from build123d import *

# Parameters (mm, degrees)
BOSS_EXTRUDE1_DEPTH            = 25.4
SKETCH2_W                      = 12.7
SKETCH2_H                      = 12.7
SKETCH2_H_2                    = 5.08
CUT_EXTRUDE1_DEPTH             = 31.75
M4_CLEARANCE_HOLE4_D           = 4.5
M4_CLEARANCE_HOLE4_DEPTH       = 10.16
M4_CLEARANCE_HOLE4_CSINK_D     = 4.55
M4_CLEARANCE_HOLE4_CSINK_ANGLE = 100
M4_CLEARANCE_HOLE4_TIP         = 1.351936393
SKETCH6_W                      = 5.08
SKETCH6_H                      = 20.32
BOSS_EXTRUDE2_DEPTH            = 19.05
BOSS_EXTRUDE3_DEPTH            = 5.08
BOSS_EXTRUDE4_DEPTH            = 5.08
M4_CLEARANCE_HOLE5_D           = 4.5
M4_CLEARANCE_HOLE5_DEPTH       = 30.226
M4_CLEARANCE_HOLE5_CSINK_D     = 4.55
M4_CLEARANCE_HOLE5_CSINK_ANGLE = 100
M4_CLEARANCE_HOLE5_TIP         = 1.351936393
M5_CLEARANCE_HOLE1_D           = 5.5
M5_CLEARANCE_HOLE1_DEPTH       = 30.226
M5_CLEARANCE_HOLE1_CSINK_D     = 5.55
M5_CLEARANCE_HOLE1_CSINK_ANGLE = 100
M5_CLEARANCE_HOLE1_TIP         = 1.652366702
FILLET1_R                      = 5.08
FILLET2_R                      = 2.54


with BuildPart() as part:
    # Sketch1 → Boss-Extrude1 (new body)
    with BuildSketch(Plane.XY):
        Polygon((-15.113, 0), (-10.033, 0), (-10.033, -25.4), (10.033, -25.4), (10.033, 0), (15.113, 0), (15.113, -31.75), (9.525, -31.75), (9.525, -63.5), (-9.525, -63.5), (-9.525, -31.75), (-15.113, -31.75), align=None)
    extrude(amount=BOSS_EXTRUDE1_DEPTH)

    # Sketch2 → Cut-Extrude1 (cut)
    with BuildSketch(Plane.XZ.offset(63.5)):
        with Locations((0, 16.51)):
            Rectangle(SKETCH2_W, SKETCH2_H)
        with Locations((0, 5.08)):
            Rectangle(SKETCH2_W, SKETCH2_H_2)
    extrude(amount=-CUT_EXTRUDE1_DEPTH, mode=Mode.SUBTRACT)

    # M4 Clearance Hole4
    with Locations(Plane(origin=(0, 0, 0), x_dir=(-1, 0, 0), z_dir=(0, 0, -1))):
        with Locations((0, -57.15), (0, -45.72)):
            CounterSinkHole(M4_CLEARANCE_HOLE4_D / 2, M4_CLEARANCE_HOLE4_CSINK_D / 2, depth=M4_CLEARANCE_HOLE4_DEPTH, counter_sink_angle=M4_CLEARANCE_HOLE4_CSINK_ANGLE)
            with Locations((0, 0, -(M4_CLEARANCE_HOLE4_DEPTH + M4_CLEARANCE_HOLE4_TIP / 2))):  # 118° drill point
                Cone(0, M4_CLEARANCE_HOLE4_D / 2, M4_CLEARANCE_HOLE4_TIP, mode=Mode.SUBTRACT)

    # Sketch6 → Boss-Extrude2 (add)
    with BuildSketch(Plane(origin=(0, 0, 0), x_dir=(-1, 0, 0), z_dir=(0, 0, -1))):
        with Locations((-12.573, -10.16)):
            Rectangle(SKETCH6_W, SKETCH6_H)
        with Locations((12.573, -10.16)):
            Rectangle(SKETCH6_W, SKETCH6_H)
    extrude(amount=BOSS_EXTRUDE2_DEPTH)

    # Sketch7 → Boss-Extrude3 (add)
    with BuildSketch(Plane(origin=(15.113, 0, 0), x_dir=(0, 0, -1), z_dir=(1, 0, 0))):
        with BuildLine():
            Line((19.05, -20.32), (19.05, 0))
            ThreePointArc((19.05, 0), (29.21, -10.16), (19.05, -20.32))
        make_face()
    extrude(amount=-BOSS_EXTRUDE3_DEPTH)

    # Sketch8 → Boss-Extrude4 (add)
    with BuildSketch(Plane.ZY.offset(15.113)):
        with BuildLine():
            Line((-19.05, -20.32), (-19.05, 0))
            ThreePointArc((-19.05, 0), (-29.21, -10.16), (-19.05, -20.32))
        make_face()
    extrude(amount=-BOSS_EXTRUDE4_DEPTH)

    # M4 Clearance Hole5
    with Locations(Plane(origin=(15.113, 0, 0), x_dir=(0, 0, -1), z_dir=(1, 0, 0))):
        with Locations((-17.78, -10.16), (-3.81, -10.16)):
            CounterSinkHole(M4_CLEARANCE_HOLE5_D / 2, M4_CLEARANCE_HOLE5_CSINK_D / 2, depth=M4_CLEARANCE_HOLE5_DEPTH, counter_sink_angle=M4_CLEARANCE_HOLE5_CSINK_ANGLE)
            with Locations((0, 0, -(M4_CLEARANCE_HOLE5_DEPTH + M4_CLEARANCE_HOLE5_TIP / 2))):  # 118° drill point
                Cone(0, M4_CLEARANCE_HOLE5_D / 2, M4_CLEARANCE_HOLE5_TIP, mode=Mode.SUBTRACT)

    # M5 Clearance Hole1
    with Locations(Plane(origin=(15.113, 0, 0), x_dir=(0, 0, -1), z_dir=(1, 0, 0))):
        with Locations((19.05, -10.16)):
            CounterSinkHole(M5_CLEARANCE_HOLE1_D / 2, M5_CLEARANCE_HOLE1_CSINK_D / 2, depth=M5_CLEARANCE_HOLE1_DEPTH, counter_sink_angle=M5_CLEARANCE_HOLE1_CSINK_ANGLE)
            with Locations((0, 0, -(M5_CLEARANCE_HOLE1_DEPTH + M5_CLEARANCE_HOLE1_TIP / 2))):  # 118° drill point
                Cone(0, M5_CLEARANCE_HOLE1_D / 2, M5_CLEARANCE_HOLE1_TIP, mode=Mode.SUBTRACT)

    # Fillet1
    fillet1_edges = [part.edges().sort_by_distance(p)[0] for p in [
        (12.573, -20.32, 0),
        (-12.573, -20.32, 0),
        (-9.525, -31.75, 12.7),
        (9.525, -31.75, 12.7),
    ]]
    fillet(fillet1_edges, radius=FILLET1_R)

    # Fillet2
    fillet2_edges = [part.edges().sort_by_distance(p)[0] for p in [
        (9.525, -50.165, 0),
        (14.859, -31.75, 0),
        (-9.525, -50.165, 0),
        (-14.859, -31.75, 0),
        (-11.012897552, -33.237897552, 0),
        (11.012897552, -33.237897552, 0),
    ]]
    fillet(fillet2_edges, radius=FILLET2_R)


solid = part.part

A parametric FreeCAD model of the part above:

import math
import FreeCAD as App
import Part
import Sketcher
from FreeCAD import Vector
Q = App.Units.Quantity


def edges_at(feature, points):
    """Names of the edges that pass closest to the given points."""
    edges = feature.Shape.Edges
    near = lambda p: min(range(len(edges)), key=lambda i: edges[i].distToShape(Part.Vertex(*p))[0])
    return sorted({f"Edge{near(p) + 1}" for p in points})


def add_polygon(sketch, points):
    """Adds a closed chain of lines whose ends are joined by coincident constraints."""
    first, n = sketch.GeometryCount, len(points)
    for a, b in zip(points, points[1:] + points[:1]):
        sketch.addGeometry(Part.LineSegment(App.Vector(*a, 0), App.Vector(*b, 0)), False)
    for i in range(n):
        sketch.addConstraint(Sketcher.Constraint("Coincident", first + i, 2, first + (i + 1) % n, 1))

doc = App.newDocument("Part")
body = doc.addObject("PartDesign::Body", "Body")

# Sketch on XY plane
sketch1 = doc.addObject("Sketcher::SketchObject", "Sketch")
body.addObject(sketch1)
sketch1.AttachmentSupport = (doc.XY_Plane, [""])
sketch1.MapMode = "FlatFace"
add_polygon(sketch1, [(-10, 0), (-15, 0), (-15, -32), (-10, -32), (-10, -64), (10, -64), (10, -32), (15, -32), (15, 0), (10, 0), (10, -25), (-10, -25)])  # lines 0-11
sketch1.addConstraint(Sketcher.Constraint("Horizontal", 0))
sketch1.addConstraint(Sketcher.Constraint("Vertical", 1))
sketch1.addConstraint(Sketcher.Constraint("Horizontal", 2))
sketch1.addConstraint(Sketcher.Constraint("Vertical", 3))
sketch1.addConstraint(Sketcher.Constraint("Horizontal", 4))
sketch1.addConstraint(Sketcher.Constraint("Vertical", 5))
sketch1.addConstraint(Sketcher.Constraint("Horizontal", 6))
sketch1.addConstraint(Sketcher.Constraint("Vertical", 7))
sketch1.addConstraint(Sketcher.Constraint("Horizontal", 8))
sketch1.addConstraint(Sketcher.Constraint("Vertical", 9))
sketch1.addConstraint(Sketcher.Constraint("Horizontal", 10))
sketch1.addConstraint(Sketcher.Constraint("Vertical", 11))
sketch1.addConstraint(Sketcher.Constraint("Symmetric", 0, 2, 7, 2, -1, 1))
sketch1.addConstraint(Sketcher.Constraint("Symmetric", 2, 2, 5, 2, -2))
sketch1.addConstraint(Sketcher.Constraint("Symmetric", 8, 2, 11, 2, -2))
sketch1.addConstraint(Sketcher.Constraint("Equal", 1, 3))
sketch1.addConstraint(Sketcher.Constraint("DistanceY", 9, 2, 9, 1, Q("1 in")))
sketch1.addConstraint(Sketcher.Constraint("DistanceX", 0, 2, 0, 1, Q("0.2 in")))
sketch1.addConstraint(Sketcher.Constraint("DistanceX", 2, 1, 2, 2, Q("0.22 in")))
sketch1.addConstraint(Sketcher.Constraint("DistanceX", 4, 1, 4, 2, Q("0.75 in")))
sketch1.addConstraint(Sketcher.Constraint("DistanceY", 1, 2, 1, 1, Q("1.25 in")))
pad1 = doc.addObject("PartDesign::Pad", "Pad")
body.addObject(pad1)
pad1.Profile = sketch1
pad1.Length = Q("1 in")

# Sketch on XZ plane
sketch2 = doc.addObject("Sketcher::SketchObject", "Sketch001")
body.addObject(sketch2)
sketch2.AttachmentSupport = (doc.XZ_Plane, [""])
sketch2.MapMode = "FlatFace"
sketch2.AttachmentOffset = App.Placement(Vector(0, 0, 2.5 * 25.4), App.Rotation())
add_polygon(sketch2, [(-6, 23), (-6, 10), (6, 10), (6, 23)])  # lines 0-3
add_polygon(sketch2, [(-6, 8), (-6, 3), (6, 3), (6, 8)])  # lines 4-7
sketch2.addConstraint(Sketcher.Constraint("Vertical", 0))
sketch2.addConstraint(Sketcher.Constraint("Horizontal", 1))
sketch2.addConstraint(Sketcher.Constraint("Vertical", 2))
sketch2.addConstraint(Sketcher.Constraint("Horizontal", 3))
sketch2.addConstraint(Sketcher.Constraint("Vertical", 4))
sketch2.addConstraint(Sketcher.Constraint("Horizontal", 5))
sketch2.addConstraint(Sketcher.Constraint("Vertical", 6))
sketch2.addConstraint(Sketcher.Constraint("Horizontal", 7))
sketch2.addConstraint(Sketcher.Constraint("Vertical", 3, 2, 4, 2))
sketch2.addConstraint(Sketcher.Constraint("Vertical", 2, 2, 5, 2))
sketch2.addConstraint(Sketcher.Constraint("Equal", 7, 0))
sketch2.addConstraint(Sketcher.Constraint("DistanceX", 1, 1, 1, 2, Q("0.5 in")))
sketch2.addConstraint(Sketcher.Constraint("DistanceY", 4, 2, 4, 1, Q("0.2 in")))
sketch2.addConstraint(Sketcher.Constraint("DistanceY", -1, 1, 0, 2, Q("0.4 in")))
sketch2.addConstraint(Sketcher.Constraint("DistanceY", -1, 1, 4, 2, Q("0.1 in")))
sketch2.addConstraint(Sketcher.Constraint("DistanceX", 0, 2, -1, 1, Q("0.25 in")))
pocket1 = doc.addObject("PartDesign::Pocket", "Pocket")
body.addObject(pocket1)
pocket1.Profile = sketch2
pocket1.Length = Q("1.25 in")

# Sketch on XY plane
sketch3 = doc.addObject("Sketcher::SketchObject", "Sketch002")
body.addObject(sketch3)
sketch3.AttachmentSupport = (doc.XY_Plane, [""])
sketch3.MapMode = "FlatFace"
sketch3.addGeometry(Part.Circle(Vector(0, -57.1, 0), Vector(0, 0, 1), 2.2), False)
sketch3.addGeometry(Part.Circle(Vector(0, -45.7, 0), Vector(0, 0, 1), 2.2), False)
sketch3.addConstraint(Sketcher.Constraint("Equal", 0, 1))
sketch3.addConstraint(Sketcher.Constraint("PointOnObject", 0, 3, -2))
sketch3.addConstraint(Sketcher.Constraint("PointOnObject", 1, 3, -2))
sketch3.addConstraint(Sketcher.Constraint("DistanceY", 1, 3, -1, 1, Q("1.8 in")))
sketch3.addConstraint(Sketcher.Constraint("Diameter", 0, 4.5))
sketch3.addConstraint(Sketcher.Constraint("DistanceY", 0, 3, -1, 1, Q("2.25 in")))
doc.recompute()
hole = doc.addObject("PartDesign::Hole", "Hole")
body.addObject(hole)
hole.Profile = sketch3
hole.ThreadType = "None"
hole.Diameter = 4.5
hole.DepthType = "Dimension"
hole.Depth = Q("0.4 in")
hole.DrillPoint = "Angled"
hole.DrillPointAngle = 118
hole.HoleCutType = "Countersink"
hole.HoleCutDiameter = 4.55
hole.HoleCutCountersinkAngle = 100
hole.Reversed = True

# Sketch on XY plane
sketch4 = doc.addObject("Sketcher::SketchObject", "Sketch003")
body.addObject(sketch4)
sketch4.AttachmentSupport = (doc.XY_Plane, [""])
sketch4.MapMode = "FlatFace"
add_polygon(sketch4, [(15, 0), (15, -20), (10, -20), (10, 0)])  # lines 0-3
add_polygon(sketch4, [(-10, 0), (-10, -20), (-15, -20), (-15, 0)])  # lines 4-7
sketch4.addConstraint(Sketcher.Constraint("Vertical", 0))
sketch4.addConstraint(Sketcher.Constraint("Horizontal", 1))
sketch4.addConstraint(Sketcher.Constraint("Vertical", 2))
sketch4.addConstraint(Sketcher.Constraint("Horizontal", 3))
sketch4.addConstraint(Sketcher.Constraint("Vertical", 4))
sketch4.addConstraint(Sketcher.Constraint("Horizontal", 5))
sketch4.addConstraint(Sketcher.Constraint("Vertical", 6))
sketch4.addConstraint(Sketcher.Constraint("Horizontal", 7))
sketch4.addConstraint(Sketcher.Constraint("Symmetric", 3, 2, 6, 2, -1, 1))
sketch4.addConstraint(Sketcher.Constraint("Symmetric", 1, 2, 4, 2, -2))
sketch4.addConstraint(Sketcher.Constraint("PointOnObject", 2, 2, -1))
sketch4.addConstraint(Sketcher.Constraint("DistanceX", 1, 2, 1, 1, Q("0.2 in")))
sketch4.addConstraint(Sketcher.Constraint("DistanceY", 0, 2, 0, 1, Q("0.8 in")))
sketch4.addConstraint(Sketcher.Constraint("DistanceX", 4, 2, 1, 2, Q("0.79 in")))
pad2 = doc.addObject("PartDesign::Pad", "Pad001")
body.addObject(pad2)
pad2.Profile = sketch4
pad2.Length = Q("0.75 in")
pad2.Reversed = True

# Sketch on YZ plane
sketch5 = doc.addObject("Sketcher::SketchObject", "Sketch004")
body.addObject(sketch5)
sketch5.AttachmentSupport = (doc.YZ_Plane, [""])
sketch5.MapMode = "FlatFace"
sketch5.AttachmentOffset = App.Placement(Vector(0, 0, 0.595 * 25.4), App.Rotation())
sketch5.addGeometry(Part.LineSegment(Vector(0, -19, 0), Vector(-20, -19, 0)), False)
sketch5.addGeometry(Part.ArcOfCircle(Part.Circle(Vector(-10, -19, 0), Vector(0, 0, 1), 10), math.radians(180), math.radians(360)), False)
sketch5.addConstraint(Sketcher.Constraint("Coincident", 0, 1, 1, 2))
sketch5.addConstraint(Sketcher.Constraint("Coincident", 1, 1, 0, 2))
sketch5.addConstraint(Sketcher.Constraint("Horizontal", 0))
sketch5.addConstraint(Sketcher.Constraint("PointOnObject", 0, 1, -2))
sketch5.addConstraint(Sketcher.Constraint("Horizontal", 1, 3, 0, 1))
sketch5.addConstraint(Sketcher.Constraint("Radius", 1, Q("0.4 in")))
sketch5.addConstraint(Sketcher.Constraint("DistanceY", 1, 3, -1, 1, Q("0.75 in")))
pad3 = doc.addObject("PartDesign::Pad", "Pad002")
body.addObject(pad3)
pad3.Profile = sketch5
pad3.Length = Q("0.2 in")
pad3.Reversed = True

# Sketch on YZ plane
sketch6 = doc.addObject("Sketcher::SketchObject", "Sketch005")
body.addObject(sketch6)
sketch6.AttachmentSupport = (doc.YZ_Plane, [""])
sketch6.MapMode = "FlatFace"
sketch6.AttachmentOffset = App.Placement(Vector(0, 0, -0.595 * 25.4), App.Rotation())
sketch6.addGeometry(Part.LineSegment(Vector(-20, -19, 0), Vector(0, -19, 0)), False)
sketch6.addGeometry(Part.ArcOfCircle(Part.Circle(Vector(-10, -19, 0), Vector(0, 0, 1), 10), math.radians(180), math.radians(360)), False)
sketch6.addConstraint(Sketcher.Constraint("Coincident", 0, 1, 1, 1))
sketch6.addConstraint(Sketcher.Constraint("Coincident", 1, 2, 0, 2))
sketch6.addConstraint(Sketcher.Constraint("Horizontal", 0))
sketch6.addConstraint(Sketcher.Constraint("PointOnObject", 1, 2, -2))
sketch6.addConstraint(Sketcher.Constraint("Horizontal", 1, 3, 0, 1))
sketch6.addConstraint(Sketcher.Constraint("Radius", 1, Q("0.4 in")))
sketch6.addConstraint(Sketcher.Constraint("DistanceY", 1, 3, -1, 1, Q("0.75 in")))
pad4 = doc.addObject("PartDesign::Pad", "Pad003")
body.addObject(pad4)
pad4.Profile = sketch6
pad4.Length = Q("0.2 in")

# Sketch on YZ plane
sketch7 = doc.addObject("Sketcher::SketchObject", "Sketch006")
body.addObject(sketch7)
sketch7.AttachmentSupport = (doc.YZ_Plane, [""])
sketch7.MapMode = "FlatFace"
sketch7.AttachmentOffset = App.Placement(Vector(0, 0, 0.595 * 25.4), App.Rotation())
sketch7.addGeometry(Part.Circle(Vector(-10.2, 17.8, 0), Vector(0, 0, 1), 2.2), False)
sketch7.addGeometry(Part.Circle(Vector(-10.2, 3.8, 0), Vector(0, 0, 1), 2.2), False)
sketch7.addConstraint(Sketcher.Constraint("Equal", 0, 1))
sketch7.addConstraint(Sketcher.Constraint("Vertical", 0, 3, 1, 3))
sketch7.addConstraint(Sketcher.Constraint("DistanceX", 0, 3, -1, 1, Q("0.4 in")))
sketch7.addConstraint(Sketcher.Constraint("DistanceY", -1, 1, 0, 3, Q("0.7 in")))
sketch7.addConstraint(Sketcher.Constraint("Diameter", 0, 4.5))
sketch7.addConstraint(Sketcher.Constraint("DistanceY", -1, 1, 1, 3, Q("0.15 in")))
doc.recompute()
hole2 = doc.addObject("PartDesign::Hole", "Hole001")
body.addObject(hole2)
hole2.Profile = sketch7
hole2.ThreadType = "None"
hole2.Diameter = 4.5
hole2.DepthType = "Dimension"
hole2.Depth = Q("1.19 in")
hole2.DrillPoint = "Angled"
hole2.DrillPointAngle = 118
hole2.HoleCutType = "Countersink"
hole2.HoleCutDiameter = 4.55
hole2.HoleCutCountersinkAngle = 100

# Sketch on YZ plane
sketch8 = doc.addObject("Sketcher::SketchObject", "Sketch007")
body.addObject(sketch8)
sketch8.AttachmentSupport = (doc.YZ_Plane, [""])
sketch8.MapMode = "FlatFace"
sketch8.AttachmentOffset = App.Placement(Vector(0, 0, 0.595 * 25.4), App.Rotation())
sketch8.addGeometry(Part.Circle(Vector(-10.2, -19.1, 0), Vector(0, 0, 1), 2.8), False)
sketch8.addConstraint(Sketcher.Constraint("DistanceX", 0, 3, -1, 1, Q("0.4 in")))
sketch8.addConstraint(Sketcher.Constraint("Diameter", 0, 5.5))
sketch8.addConstraint(Sketcher.Constraint("DistanceY", 0, 3, -1, 1, Q("0.75 in")))
doc.recompute()
hole3 = doc.addObject("PartDesign::Hole", "Hole002")
body.addObject(hole3)
hole3.Profile = sketch8
hole3.ThreadType = "None"
hole3.Diameter = 5.5
hole3.DepthType = "Dimension"
hole3.Depth = Q("1.19 in")
hole3.DrillPoint = "Angled"
hole3.DrillPointAngle = 118
hole3.HoleCutType = "Countersink"
hole3.HoleCutDiameter = 5.55
hole3.HoleCutCountersinkAngle = 100
doc.recompute()

fillet = doc.addObject("PartDesign::Fillet", "Fillet")
body.addObject(fillet)
fillet.Base = (hole3, edges_at(hole3, [
    (12.573, -20.32, 0),
    (-12.573, -20.32, 0),
    (-9.525, -31.75, 12.7),
    (9.525, -31.75, 12.7),
]))
fillet.Radius = Q("0.2 in")
doc.recompute()

fillet2 = doc.addObject("PartDesign::Fillet", "Fillet001")
body.addObject(fillet2)
fillet2.Base = (fillet, edges_at(fillet, [
    (9.525, -50.165, 0),
    (14.859, -31.75, 0),
    (-9.525, -50.165, 0),
    (-14.859, -31.75, 0),
    (-11.013, -33.238, 0),
    (11.013, -33.238, 0),
]))
fillet2.Radius = Q("0.1 in")

doc.recompute()
